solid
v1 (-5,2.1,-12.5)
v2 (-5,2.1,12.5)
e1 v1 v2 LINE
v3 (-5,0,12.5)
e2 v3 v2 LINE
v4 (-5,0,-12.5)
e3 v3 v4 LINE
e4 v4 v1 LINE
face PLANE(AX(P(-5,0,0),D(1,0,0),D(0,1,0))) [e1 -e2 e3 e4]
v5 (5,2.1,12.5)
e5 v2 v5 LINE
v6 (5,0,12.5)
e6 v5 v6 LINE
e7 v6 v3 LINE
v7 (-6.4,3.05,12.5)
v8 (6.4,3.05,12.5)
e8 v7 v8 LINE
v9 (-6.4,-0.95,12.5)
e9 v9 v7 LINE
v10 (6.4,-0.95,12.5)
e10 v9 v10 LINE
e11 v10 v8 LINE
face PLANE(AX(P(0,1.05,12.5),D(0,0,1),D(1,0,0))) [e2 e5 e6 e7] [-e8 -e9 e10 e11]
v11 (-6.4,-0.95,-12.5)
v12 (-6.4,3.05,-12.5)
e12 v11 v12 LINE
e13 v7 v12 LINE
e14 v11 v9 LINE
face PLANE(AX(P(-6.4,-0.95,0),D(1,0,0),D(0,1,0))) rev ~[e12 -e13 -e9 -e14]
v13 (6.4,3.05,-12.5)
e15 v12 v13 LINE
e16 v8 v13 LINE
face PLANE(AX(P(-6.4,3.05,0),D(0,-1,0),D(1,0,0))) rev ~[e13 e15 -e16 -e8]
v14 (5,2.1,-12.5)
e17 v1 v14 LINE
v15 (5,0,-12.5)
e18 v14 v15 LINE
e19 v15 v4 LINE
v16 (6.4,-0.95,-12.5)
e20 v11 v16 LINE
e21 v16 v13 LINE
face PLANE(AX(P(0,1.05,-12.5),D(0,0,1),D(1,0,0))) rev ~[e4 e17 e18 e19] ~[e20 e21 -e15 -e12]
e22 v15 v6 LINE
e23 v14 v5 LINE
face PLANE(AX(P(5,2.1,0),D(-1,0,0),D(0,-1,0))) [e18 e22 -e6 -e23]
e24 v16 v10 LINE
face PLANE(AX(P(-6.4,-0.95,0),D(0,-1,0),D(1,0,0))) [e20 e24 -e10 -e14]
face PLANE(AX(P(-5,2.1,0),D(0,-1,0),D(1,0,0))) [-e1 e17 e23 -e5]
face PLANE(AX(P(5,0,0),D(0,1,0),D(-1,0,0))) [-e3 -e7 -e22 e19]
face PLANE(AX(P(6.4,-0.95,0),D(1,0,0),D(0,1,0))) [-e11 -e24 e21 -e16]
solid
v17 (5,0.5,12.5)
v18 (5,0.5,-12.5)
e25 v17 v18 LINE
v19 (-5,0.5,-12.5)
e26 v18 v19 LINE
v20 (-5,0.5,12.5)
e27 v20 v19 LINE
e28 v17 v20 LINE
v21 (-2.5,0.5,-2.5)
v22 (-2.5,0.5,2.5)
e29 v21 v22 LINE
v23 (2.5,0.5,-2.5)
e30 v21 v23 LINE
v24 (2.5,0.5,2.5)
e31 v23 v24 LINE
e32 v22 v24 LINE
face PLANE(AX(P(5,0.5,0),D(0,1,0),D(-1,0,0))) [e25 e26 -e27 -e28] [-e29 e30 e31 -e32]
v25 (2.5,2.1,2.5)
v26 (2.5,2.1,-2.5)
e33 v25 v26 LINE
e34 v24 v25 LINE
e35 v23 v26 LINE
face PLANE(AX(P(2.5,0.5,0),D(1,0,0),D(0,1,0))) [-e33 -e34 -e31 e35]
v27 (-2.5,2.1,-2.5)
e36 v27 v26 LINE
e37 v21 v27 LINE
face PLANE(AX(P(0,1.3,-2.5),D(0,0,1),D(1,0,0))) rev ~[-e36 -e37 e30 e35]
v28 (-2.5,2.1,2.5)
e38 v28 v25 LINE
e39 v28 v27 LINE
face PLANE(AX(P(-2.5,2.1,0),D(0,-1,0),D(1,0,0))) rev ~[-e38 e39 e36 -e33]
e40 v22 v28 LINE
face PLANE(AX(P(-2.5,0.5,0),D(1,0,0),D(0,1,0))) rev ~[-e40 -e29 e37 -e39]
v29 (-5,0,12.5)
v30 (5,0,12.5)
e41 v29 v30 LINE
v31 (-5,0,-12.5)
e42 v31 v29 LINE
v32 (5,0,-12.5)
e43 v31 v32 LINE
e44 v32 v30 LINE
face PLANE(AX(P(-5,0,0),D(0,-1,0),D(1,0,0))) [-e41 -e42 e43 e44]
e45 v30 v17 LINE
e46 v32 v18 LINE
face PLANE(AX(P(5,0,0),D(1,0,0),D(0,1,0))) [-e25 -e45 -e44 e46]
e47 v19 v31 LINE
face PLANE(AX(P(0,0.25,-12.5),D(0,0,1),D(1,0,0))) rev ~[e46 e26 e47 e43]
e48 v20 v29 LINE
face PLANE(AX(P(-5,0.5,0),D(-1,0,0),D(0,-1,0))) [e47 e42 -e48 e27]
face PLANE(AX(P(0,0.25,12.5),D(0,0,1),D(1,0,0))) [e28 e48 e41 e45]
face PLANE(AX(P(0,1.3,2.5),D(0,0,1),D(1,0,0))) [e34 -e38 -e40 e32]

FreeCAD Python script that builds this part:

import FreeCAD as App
import Part
import Sketcher

V = App.Vector
Q = App.Units.Quantity

doc = App.newDocument("Part")
body = doc.addObject("PartDesign::Body", "Body")

sketch1 = body.newObject("Sketcher::SketchObject", "Sketch")
sketch1.AttachmentSupport = (doc.getObject("XY_Plane"), [""])
sketch1.MapMode = "FlatFace"
sketch1.addGeometry([
    Part.LineSegment(V(-5, 0.5, 0), V(-5, 0, 0)),
    Part.LineSegment(V(-5, 0, 0), V(5, 0, 0)),
    Part.LineSegment(V(5, 0, 0), V(5, 0.5, 0)),
    Part.LineSegment(V(5, 0.5, 0), V(-5, 0.5, 0)),
], False)
sketch1.addConstraint([
    Sketcher.Constraint("Coincident", 0, 2, 1, 1),
    Sketcher.Constraint("Coincident", 1, 2, 2, 1),
    Sketcher.Constraint("Coincident", 2, 2, 3, 1),
    Sketcher.Constraint("Coincident", 3, 2, 0, 1),
    Sketcher.Constraint("Vertical", 0),
    Sketcher.Constraint("Horizontal", 1),
    Sketcher.Constraint("Vertical", 2),
    Sketcher.Constraint("Horizontal", 3),
    Sketcher.Constraint("Symmetric", 0, 2, 1, 2, -1, 1),
    Sketcher.Constraint("DistanceX", 1, 1, 1, 2, Q("10 mm")),
    Sketcher.Constraint("DistanceY", 0, 2, 0, 1, Q("0.5 mm")),
])
pad1 = body.newObject("PartDesign::Pad", "Pad")
pad1.Profile = sketch1
pad1.Length = 25
pad1.Midplane = True

sketch2 = body.newObject("Sketcher::SketchObject", "Sketch001")
sketch2.AttachmentSupport = (doc.getObject("XY_Plane"), [""])
sketch2.MapMode = "FlatFace"
sketch2.addGeometry([
    Part.LineSegment(V(-2.5, 2.1, 0), V(-2.5, 0.5, 0)),
    Part.LineSegment(V(-2.5, 0.5, 0), V(2.5, 0.5, 0)),
    Part.LineSegment(V(2.5, 0.5, 0), V(2.5, 2.1, 0)),
    Part.LineSegment(V(2.5, 2.1, 0), V(-2.5, 2.1, 0)),
], False)
sketch2.addConstraint([
    Sketcher.Constraint("Coincident", 0, 2, 1, 1),
    Sketcher.Constraint("Coincident", 1, 2, 2, 1),
    Sketcher.Constraint("Coincident", 2, 2, 3, 1),
    Sketcher.Constraint("Coincident", 3, 2, 0, 1),
    Sketcher.Constraint("Vertical", 0),
    Sketcher.Constraint("Horizontal", 1),
    Sketcher.Constraint("Vertical", 2),
    Sketcher.Constraint("Horizontal", 3),
    Sketcher.Constraint("DistanceX", 1, 1, 1, 2, Q("5 mm")),
    Sketcher.Constraint("DistanceY", 0, 2, 0, 1, Q("1.6 mm")),
    Sketcher.Constraint("DistanceX", 0, 2, -1, 1, Q("2.5 mm")),
    Sketcher.Constraint("DistanceY", -1, 1, 0, 2, Q("0.5 mm")),
])
pad2 = body.newObject("PartDesign::Pad", "Pad001")
pad2.Profile = sketch2
pad2.Length = 5
pad2.Midplane = True
body2 = doc.addObject("PartDesign::Body", "Body001")

sketch3 = body2.newObject("Sketcher::SketchObject", "Sketch002")
sketch3.AttachmentSupport = (doc.getObject("XY_Plane001"), [""])
sketch3.MapMode = "FlatFace"
sketch3.addGeometry([
    Part.LineSegment(V(-6.4, 3, 0), V(-6.4, -0.9, 0)),
    Part.LineSegment(V(-6.4, -0.9, 0), V(6.4, -0.9, 0)),
    Part.LineSegment(V(6.4, -0.9, 0), V(6.4, 3, 0)),
    Part.LineSegment(V(6.4, 3, 0), V(-6.4, 3, 0)),
    Part.LineSegment(V(-5, 0, 0), V(-5, 2.1, 0)),
    Part.LineSegment(V(-5, 2.1, 0), V(5, 2.1, 0)),
    Part.LineSegment(V(5, 2.1, 0), V(5, 0, 0)),
    Part.LineSegment(V(5, 0, 0), V(-5, 0, 0)),
], False)
sketch3.addConstraint([
    Sketcher.Constraint("Coincident", 0, 2, 1, 1),
    Sketcher.Constraint("Coincident", 1, 2, 2, 1),
    Sketcher.Constraint("Coincident", 2, 2, 3, 1),
    Sketcher.Constraint("Coincident", 3, 2, 0, 1),
    Sketcher.Constraint("Coincident", 4, 2, 5, 1),
    Sketcher.Constraint("Coincident", 5, 2, 6, 1),
    Sketcher.Constraint("Coincident", 6, 2, 7, 1),
    Sketcher.Constraint("Coincident", 7, 2, 4, 1),
    Sketcher.Constraint("Vertical", 0),
    Sketcher.Constraint("Horizontal", 1),
    Sketcher.Constraint("Vertical", 2),
    Sketcher.Constraint("Horizontal", 3),
    Sketcher.Constraint("Vertical", 4),
    Sketcher.Constraint("Horizontal", 5),
    Sketcher.Constraint("Vertical", 6),
    Sketcher.Constraint("Horizontal", 7),
    Sketcher.Constraint("Symmetric", 6, 2, 7, 2, -1, 1),
    Sketcher.Constraint("DistanceX", 5, 1, 5, 2, Q("10 mm")),
    Sketcher.Constraint("DistanceY", 0, 2, 0, 1, Q("4 mm")),
    Sketcher.Constraint("DistanceX", 1, 1, 1, 2, Q("12.8 mm")),
    Sketcher.Constraint("DistanceY", 4, 1, 4, 2, Q("2.1 mm")),
    Sketcher.Constraint("DistanceX", 0, 2, -1, 1, Q("6.4 mm")),
    Sketcher.Constraint("DistanceY", 0, 2, -1, 1, Q("0.95 mm")),
])
pad3 = body2.newObject("PartDesign::Pad", "Pad002")
pad3.Profile = sketch3
pad3.Length = 25
pad3.Midplane = True

doc.recompute()
